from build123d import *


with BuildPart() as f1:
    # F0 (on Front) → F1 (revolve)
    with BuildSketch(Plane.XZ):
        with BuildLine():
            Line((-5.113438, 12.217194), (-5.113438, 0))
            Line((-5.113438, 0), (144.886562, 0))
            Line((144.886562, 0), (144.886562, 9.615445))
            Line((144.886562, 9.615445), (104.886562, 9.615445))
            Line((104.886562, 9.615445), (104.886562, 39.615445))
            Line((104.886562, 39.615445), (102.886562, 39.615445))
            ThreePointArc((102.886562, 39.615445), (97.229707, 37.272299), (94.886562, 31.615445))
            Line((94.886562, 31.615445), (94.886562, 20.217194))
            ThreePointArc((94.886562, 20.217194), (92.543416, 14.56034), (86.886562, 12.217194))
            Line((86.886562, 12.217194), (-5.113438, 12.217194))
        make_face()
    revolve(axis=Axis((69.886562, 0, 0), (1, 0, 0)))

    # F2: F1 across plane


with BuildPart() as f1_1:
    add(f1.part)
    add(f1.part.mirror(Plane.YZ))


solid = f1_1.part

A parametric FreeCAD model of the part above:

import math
import FreeCAD as App
import Part
import Sketcher
Q = App.Units.Quantity

doc = App.newDocument("Part")
params = doc.addObject("Spreadsheet::Sheet", "Params")
for row, (alias, value) in enumerate([
    ("sketch1_radius", "7.999999 mm"),
    ("sketch1_width", "150 mm"),
    ("sketch1_width2", "40 mm"),
    ("sketch1_width3", "2 mm"),
    ("sketch1_height", "30 mm"),
    ("revolution_angle", "360 deg"),
], start=1):
    params.set(f"A{row}", alias)
    params.set(f"B{row}", "=" + value)
    params.setAlias(f"B{row}", alias)

body = doc.addObject("PartDesign::Body", "Body")

# Sketch on XZ plane
sketch1 = body.newObject("Sketcher::SketchObject", "Sketch")
sketch1.AttachmentSupport = (doc.getObject("XZ_Plane"), [""])
sketch1.MapMode = "FlatFace"
sketch1.addGeometry([
    Part.LineSegment(App.Vector(-5.113438, 12.217194, 0), App.Vector(-5.113438, 0, 0)),  # 0
    Part.LineSegment(App.Vector(-5.113438, 0, 0), App.Vector(144.886562, 0, 0)),  # 1
    Part.LineSegment(App.Vector(144.886562, 0, 0), App.Vector(144.886562, 9.615445, 0)),  # 2
    Part.LineSegment(App.Vector(144.886562, 9.615445, 0), App.Vector(104.886562, 9.615445, 0)),  # 3
    Part.LineSegment(App.Vector(104.886562, 9.615445, 0), App.Vector(104.886562, 39.615445, 0)),  # 4
    Part.LineSegment(App.Vector(104.886562, 39.615445, 0), App.Vector(102.886562, 39.615445, 0)),  # 5
    Part.ArcOfCircle(Part.Circle(App.Vector(102.886561, 31.615446, 0), App.Vector(0, 0, 1), 7.999999), math.radians(89.999994), math.radians(180.000006)),  # 6
    Part.LineSegment(App.Vector(94.886562, 31.615445, 0), App.Vector(94.886562, 20.217194, 0)),  # 7
    Part.ArcOfCircle(Part.Circle(App.Vector(86.886561, 20.217195, 0), App.Vector(0, 0, 1), 8.000001), math.radians(-89.999994), math.radians(-0.000006)),  # 8
    Part.LineSegment(App.Vector(86.886562, 12.217194, 0), App.Vector(-5.113438, 12.217194, 0)),  # 9
], False)
sketch1.addConstraint([
    Sketcher.Constraint("Coincident", 0, 2, 1, 1),
    Sketcher.Constraint("Coincident", 1, 2, 2, 1),
    Sketcher.Constraint("Coincident", 2, 2, 3, 1),
    Sketcher.Constraint("Coincident", 3, 2, 4, 1),
    Sketcher.Constraint("Coincident", 4, 2, 5, 1),
    Sketcher.Constraint("Tangent", 5, 2, 6, 1),
    Sketcher.Constraint("Tangent", 6, 2, 7, 1),
    Sketcher.Constraint("Tangent", 7, 2, 8, 2),
    Sketcher.Constraint("Tangent", 8, 1, 9, 1),
    Sketcher.Constraint("Coincident", 9, 2, 0, 1),
    Sketcher.Constraint("Vertical", 0),
    Sketcher.Constraint("Horizontal", 1),
    Sketcher.Constraint("Vertical", 2),
    Sketcher.Constraint("Horizontal", 3),
    Sketcher.Constraint("Vertical", 4),
    Sketcher.Constraint("Horizontal", 5),
    Sketcher.Constraint("Vertical", 7),
    Sketcher.Constraint("Horizontal", 9),
    Sketcher.Constraint("Equal", 6, 8),
    Sketcher.Constraint("PointOnObject", 0, 2, -1),
    Sketcher.Constraint("Radius", 6, Q("7.999999 mm")),
    Sketcher.Constraint("DistanceX", 1, 1, 1, 2, Q("150 mm")),
    Sketcher.Constraint("DistanceX", 3, 2, 3, 1, Q("40 mm")),
    Sketcher.Constraint("DistanceX", 5, 2, 5, 1, Q("2 mm")),
    Sketcher.Constraint("DistanceY", 4, 1, 4, 2, Q("30 mm")),
    Sketcher.Constraint("DistanceY", 7, 2, 7, 1, Q("11.398251 mm")),
    Sketcher.Constraint("DistanceY", 0, 2, 0, 1, Q("12.217194 mm")),
    Sketcher.Constraint("DistanceX", -1, 1, 6, 3, Q("102.886561 mm")),
])
sketch1.setExpression("Constraints[20]", "Params.sketch1_radius")
sketch1.setExpression("Constraints[21]", "Params.sketch1_width")
sketch1.setExpression("Constraints[22]", "Params.sketch1_width2")
sketch1.setExpression("Constraints[23]", "Params.sketch1_width3")
sketch1.setExpression("Constraints[24]", "Params.sketch1_height")
revolution = body.newObject("PartDesign::Revolution", "Revolution")
revolution.Profile = sketch1
revolution.ReferenceAxis = (sketch1, ["H_Axis"])
revolution.setExpression("Angle", "Params.revolution_angle")
body2 = doc.addObject("PartDesign::Body", "Body001")
doc.recompute()

body2.BaseFeature = body
doc.recompute()

mirroring = doc.addObject("Part::Mirroring", "Mirroring")
mirroring.Source = body
mirroring.Base = App.Vector(0, 0, 0)
mirroring.Normal = App.Vector(1, 0, 0)
body3 = doc.addObject("PartDesign::Body", "Body002")
body3.BaseFeature = mirroring
boolean = body2.newObject("PartDesign::Boolean", "Boolean")
boolean.Type = "Fuse"
boolean.addObjects([body3])
doc.recompute()
mirroring.Visibility = False

doc.recompute()
